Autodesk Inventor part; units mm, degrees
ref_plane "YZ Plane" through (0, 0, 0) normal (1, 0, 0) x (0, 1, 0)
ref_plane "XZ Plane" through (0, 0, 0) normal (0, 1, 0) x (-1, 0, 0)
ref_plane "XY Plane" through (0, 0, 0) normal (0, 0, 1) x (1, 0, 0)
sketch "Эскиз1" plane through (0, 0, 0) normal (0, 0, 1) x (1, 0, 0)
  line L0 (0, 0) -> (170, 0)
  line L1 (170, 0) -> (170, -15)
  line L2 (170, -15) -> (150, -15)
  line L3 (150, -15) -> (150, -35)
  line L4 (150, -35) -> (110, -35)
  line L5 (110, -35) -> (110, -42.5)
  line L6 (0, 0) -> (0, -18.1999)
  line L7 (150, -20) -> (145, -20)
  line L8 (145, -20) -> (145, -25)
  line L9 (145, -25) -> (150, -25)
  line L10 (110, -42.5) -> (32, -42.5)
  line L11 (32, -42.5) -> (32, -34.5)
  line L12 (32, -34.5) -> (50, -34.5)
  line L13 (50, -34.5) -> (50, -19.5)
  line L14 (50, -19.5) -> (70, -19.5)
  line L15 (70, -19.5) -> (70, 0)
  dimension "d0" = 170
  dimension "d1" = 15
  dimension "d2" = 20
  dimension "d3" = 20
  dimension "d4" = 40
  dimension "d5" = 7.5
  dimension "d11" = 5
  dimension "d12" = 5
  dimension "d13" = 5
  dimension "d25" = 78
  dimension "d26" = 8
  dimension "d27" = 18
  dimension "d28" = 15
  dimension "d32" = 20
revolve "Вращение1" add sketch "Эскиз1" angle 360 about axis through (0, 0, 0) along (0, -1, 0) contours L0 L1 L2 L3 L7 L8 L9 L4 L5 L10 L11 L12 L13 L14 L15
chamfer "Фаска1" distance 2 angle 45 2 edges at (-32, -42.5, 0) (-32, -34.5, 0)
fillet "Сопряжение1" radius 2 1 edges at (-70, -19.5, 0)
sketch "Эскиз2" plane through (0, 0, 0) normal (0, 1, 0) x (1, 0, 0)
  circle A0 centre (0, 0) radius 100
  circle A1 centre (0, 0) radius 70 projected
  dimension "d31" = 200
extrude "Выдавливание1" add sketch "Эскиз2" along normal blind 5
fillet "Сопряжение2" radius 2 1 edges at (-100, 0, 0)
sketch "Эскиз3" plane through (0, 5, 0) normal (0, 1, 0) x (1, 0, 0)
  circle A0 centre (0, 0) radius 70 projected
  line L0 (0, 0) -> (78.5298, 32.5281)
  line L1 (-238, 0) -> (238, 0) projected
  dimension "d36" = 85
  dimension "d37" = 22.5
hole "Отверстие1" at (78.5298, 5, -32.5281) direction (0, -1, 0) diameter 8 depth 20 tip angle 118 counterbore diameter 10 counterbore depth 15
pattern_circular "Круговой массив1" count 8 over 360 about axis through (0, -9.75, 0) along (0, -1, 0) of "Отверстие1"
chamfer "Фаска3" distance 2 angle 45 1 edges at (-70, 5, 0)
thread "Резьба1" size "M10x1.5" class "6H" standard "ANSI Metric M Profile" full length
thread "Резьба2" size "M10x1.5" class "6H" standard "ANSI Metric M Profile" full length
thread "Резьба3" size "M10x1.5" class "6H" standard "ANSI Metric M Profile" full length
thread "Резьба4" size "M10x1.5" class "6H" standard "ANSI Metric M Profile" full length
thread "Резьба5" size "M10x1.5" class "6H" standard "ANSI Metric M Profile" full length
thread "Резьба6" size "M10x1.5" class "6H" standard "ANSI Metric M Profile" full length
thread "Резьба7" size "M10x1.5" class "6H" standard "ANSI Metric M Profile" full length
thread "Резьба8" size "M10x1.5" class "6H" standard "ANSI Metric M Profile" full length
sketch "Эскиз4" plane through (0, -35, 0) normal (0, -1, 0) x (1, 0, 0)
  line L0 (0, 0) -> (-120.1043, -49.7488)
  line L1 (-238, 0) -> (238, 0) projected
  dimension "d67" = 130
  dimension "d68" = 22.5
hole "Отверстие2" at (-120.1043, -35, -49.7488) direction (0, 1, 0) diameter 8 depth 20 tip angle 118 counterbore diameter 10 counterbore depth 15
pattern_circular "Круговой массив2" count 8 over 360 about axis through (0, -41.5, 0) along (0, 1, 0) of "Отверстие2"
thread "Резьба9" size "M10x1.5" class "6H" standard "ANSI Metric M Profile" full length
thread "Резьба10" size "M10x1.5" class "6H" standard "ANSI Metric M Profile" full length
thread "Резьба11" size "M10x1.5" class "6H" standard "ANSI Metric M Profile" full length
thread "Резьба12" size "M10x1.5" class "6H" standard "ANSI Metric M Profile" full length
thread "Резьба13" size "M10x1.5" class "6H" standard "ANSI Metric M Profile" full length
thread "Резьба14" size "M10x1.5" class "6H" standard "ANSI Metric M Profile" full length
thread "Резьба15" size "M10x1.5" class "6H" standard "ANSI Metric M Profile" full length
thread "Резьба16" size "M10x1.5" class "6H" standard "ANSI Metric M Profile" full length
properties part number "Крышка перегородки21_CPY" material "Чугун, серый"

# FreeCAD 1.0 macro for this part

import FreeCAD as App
import Part
import Sketcher
Q = App.Units.Quantity


def edges_at(feature, points):
    """Names of the edges that pass closest to the given points."""
    edges = feature.Shape.Edges
    near = lambda p: min(range(len(edges)), key=lambda i: edges[i].distToShape(Part.Vertex(*p))[0])
    return sorted({f"Edge{near(p) + 1}" for p in points})


def add_polygon(sketch, points):
    """Adds a closed chain of lines whose ends are joined by coincident constraints."""
    first, n = sketch.GeometryCount, len(points)
    for a, b in zip(points, points[1:] + points[:1]):
        sketch.addGeometry(Part.LineSegment(App.Vector(*a, 0), App.Vector(*b, 0)), False)
    for i in range(n):
        sketch.addConstraint(Sketcher.Constraint("Coincident", first + i, 2, first + (i + 1) % n, 1))

doc = App.newDocument("Part")
body = doc.addObject("PartDesign::Body", "Body")

sketch1 = doc.addObject("Sketcher::SketchObject", "Sketch")
body.addObject(sketch1)
sketch1.AttachmentSupport = (doc.XY_Plane, [""])
sketch1.MapMode = "FlatFace"
add_polygon(sketch1, [(170, 0), (70, 0), (70, -20), (50, -20), (50, -34), (32, -34), (32, -42), (110, -42), (110, -35), (150, -35), (150, -25), (145, -25), (145, -20), (150, -20), (150, -15), (170, -15)])
sketch1.addConstraint(Sketcher.Constraint("Horizontal", 0))
sketch1.addConstraint(Sketcher.Constraint("Vertical", 1))
sketch1.addConstraint(Sketcher.Constraint("Horizontal", 2))
sketch1.addConstraint(Sketcher.Constraint("Vertical", 3))
sketch1.addConstraint(Sketcher.Constraint("Horizontal", 4))
sketch1.addConstraint(Sketcher.Constraint("Vertical", 5))
sketch1.addConstraint(Sketcher.Constraint("Horizontal", 6))
sketch1.addConstraint(Sketcher.Constraint("Vertical", 7))
sketch1.addConstraint(Sketcher.Constraint("Horizontal", 8))
sketch1.addConstraint(Sketcher.Constraint("Vertical", 9))
sketch1.addConstraint(Sketcher.Constraint("Horizontal", 10))
sketch1.addConstraint(Sketcher.Constraint("Vertical", 11))
sketch1.addConstraint(Sketcher.Constraint("Horizontal", 12))
sketch1.addConstraint(Sketcher.Constraint("Vertical", 13))
sketch1.addConstraint(Sketcher.Constraint("Horizontal", 14))
sketch1.addConstraint(Sketcher.Constraint("Vertical", 15))
sketch1.addConstraint(Sketcher.Constraint("PointOnObject", 0, 2, -1))
sketch1.addConstraint(Sketcher.Constraint("Vertical", 9, 2, 12, 2))
sketch1.addConstraint(Sketcher.Constraint("Equal", 2, 14))
sketch1.addConstraint(Sketcher.Constraint("Equal", 12, 11))
sketch1.addConstraint(Sketcher.Constraint("Equal", 11, 13))
sketch1.addConstraint(Sketcher.Constraint("Equal", 3, 15))
sketch1.addConstraint(Sketcher.Constraint("DistanceX", 2, 2, 2, 1, Q("20 mm")))
sketch1.addConstraint(Sketcher.Constraint("DistanceX", 4, 2, 4, 1, Q("18 mm")))
sketch1.addConstraint(Sketcher.Constraint("DistanceX", 6, 1, 6, 2, Q("78 mm")))
sketch1.addConstraint(Sketcher.Constraint("DistanceX", 8, 1, 8, 2, Q("40 mm")))
sketch1.addConstraint(Sketcher.Constraint("DistanceX", 10, 2, 10, 1, Q("5 mm")))
sketch1.addConstraint(Sketcher.Constraint("DistanceY", 3, 2, 3, 1, Q("15 mm")))
sketch1.addConstraint(Sketcher.Constraint("DistanceY", 5, 2, 5, 1, Q("8 mm")))
sketch1.addConstraint(Sketcher.Constraint("DistanceY", 7, 1, 7, 2, Q("7.5 mm")))
sketch1.addConstraint(Sketcher.Constraint("DistanceX", -1, 1, 14, 2, Q("170 mm")))
sketch1.addConstraint(Sketcher.Constraint("DistanceY", 8, 2, 11, 2, Q("15 mm")))
revolution = doc.addObject("PartDesign::Revolution", "Revolution")
body.addObject(revolution)
revolution.Profile = sketch1
revolution.ReferenceAxis = (sketch1, ["V_Axis"])
revolution.Angle = 360
doc.recompute()

chamfer = doc.addObject("PartDesign::Chamfer", "Chamfer")
body.addObject(chamfer)
chamfer.Base = (revolution, edges_at(revolution, [(-32, -42.5, 0), (-32, -34.5, 0)]))
chamfer.Size = 2
doc.recompute()

fillet = doc.addObject("PartDesign::Fillet", "Fillet")
body.addObject(fillet)
fillet.Base = (chamfer, edges_at(chamfer, [(-70, -19.5, 0)]))
fillet.Radius = 2

sketch2 = doc.addObject("Sketcher::SketchObject", "Sketch001")
body.addObject(sketch2)
sketch2.AttachmentSupport = (doc.XZ_Plane, [""])
sketch2.MapMode = "FlatFace"
sketch2.addGeometry(Part.Circle(App.Vector(0, 0, 0), App.Vector(0, 0, 1), 100), False)
sketch2.addGeometry(Part.Circle(App.Vector(0, 0, 0), App.Vector(0, 0, 1), 70), False)
sketch2.addConstraint(Sketcher.Constraint("Coincident", 0, 3, -1, 1))
sketch2.addConstraint(Sketcher.Constraint("Coincident", 1, 3, -1, 1))
sketch2.addConstraint(Sketcher.Constraint("Diameter", 0, Q("200 mm")))
sketch2.addConstraint(Sketcher.Constraint("Diameter", 1, Q("140 mm")))
pad1 = doc.addObject("PartDesign::Pad", "Pad")
body.addObject(pad1)
pad1.Profile = sketch2
pad1.Length = 5
pad1.Reversed = True
doc.recompute()

fillet2 = doc.addObject("PartDesign::Fillet", "Fillet001")
body.addObject(fillet2)
fillet2.Base = (pad1, edges_at(pad1, [(-100, 0, 0)]))
fillet2.Radius = 2

sketch3 = doc.addObject("Sketcher::SketchObject", "Sketch002")
body.addObject(sketch3)
sketch3.AttachmentSupport = (doc.XZ_Plane, [""])
sketch3.MapMode = "FlatFace"
sketch3.AttachmentOffset = App.Placement(App.Vector(0, 0, -5), App.Rotation())
sketch3.addGeometry(Part.Circle(App.Vector(78.5, -32.5, 0), App.Vector(0, 0, 1), 4), False)
sketch3.addConstraint(Sketcher.Constraint("Diameter", 0, Q("8 mm")))
sketch3.addConstraint(Sketcher.Constraint("DistanceY", 0, 3, -1, 1, Q("32.528 mm")))
sketch3.addConstraint(Sketcher.Constraint("DistanceX", -1, 1, 0, 3, Q("78.5298 mm")))
doc.recompute()
hole = doc.addObject("PartDesign::Hole", "Hole")
body.addObject(hole)
hole.Profile = sketch3
hole.ThreadType = "None"
hole.Diameter = 8
hole.DepthType = "Dimension"
hole.Depth = 20
hole.DrillPoint = "Angled"
hole.DrillPointAngle = 118
hole.HoleCutType = "Counterbore"
hole.HoleCutDiameter = 10
hole.HoleCutDepth = 15
hole.Reversed = True
doc.recompute()

polarpattern = doc.addObject("PartDesign::PolarPattern", "PolarPattern")
body.addObject(polarpattern)
polarpattern.Originals = [hole]
polarpattern.Axis = (doc.Y_Axis, [""])
polarpattern.Angle = 360
polarpattern.Occurrences = 8
body.Tip = polarpattern
doc.recompute()

chamfer2 = doc.addObject("PartDesign::Chamfer", "Chamfer001")
body.addObject(chamfer2)
chamfer2.Base = (polarpattern, edges_at(polarpattern, [(-70, 5, 0)]))
chamfer2.Size = 2

sketch4 = doc.addObject("Sketcher::SketchObject", "Sketch003")
body.addObject(sketch4)
sketch4.AttachmentSupport = (doc.XZ_Plane, [""])
sketch4.MapMode = "FlatFace"
sketch4.AttachmentOffset = App.Placement(App.Vector(0, 0, 35), App.Rotation())
sketch4.addGeometry(Part.Circle(App.Vector(-120.1, -49.7, 0), App.Vector(0, 0, 1), 4), False)
sketch4.addConstraint(Sketcher.Constraint("Diameter", 0, Q("8 mm")))
sketch4.addConstraint(Sketcher.Constraint("DistanceX", 0, 3, -1, 1, Q("120.1043 mm")))
sketch4.addConstraint(Sketcher.Constraint("DistanceY", 0, 3, -1, 1, Q("49.7488 mm")))
doc.recompute()
hole2 = doc.addObject("PartDesign::Hole", "Hole001")
body.addObject(hole2)
hole2.Profile = sketch4
hole2.ThreadType = "None"
hole2.Diameter = 8
hole2.DepthType = "Dimension"
hole2.Depth = 20
hole2.DrillPoint = "Angled"
hole2.DrillPointAngle = 118
hole2.HoleCutType = "Counterbore"
hole2.HoleCutDiameter = 10
hole2.HoleCutDepth = 15
doc.recompute()

polarpattern2 = doc.addObject("PartDesign::PolarPattern", "PolarPattern001")
body.addObject(polarpattern2)
polarpattern2.Originals = [hole2]
polarpattern2.Axis = (doc.Y_Axis, [""])
polarpattern2.Angle = 360
polarpattern2.Occurrences = 8
body.Tip = polarpattern2

doc.recompute()
